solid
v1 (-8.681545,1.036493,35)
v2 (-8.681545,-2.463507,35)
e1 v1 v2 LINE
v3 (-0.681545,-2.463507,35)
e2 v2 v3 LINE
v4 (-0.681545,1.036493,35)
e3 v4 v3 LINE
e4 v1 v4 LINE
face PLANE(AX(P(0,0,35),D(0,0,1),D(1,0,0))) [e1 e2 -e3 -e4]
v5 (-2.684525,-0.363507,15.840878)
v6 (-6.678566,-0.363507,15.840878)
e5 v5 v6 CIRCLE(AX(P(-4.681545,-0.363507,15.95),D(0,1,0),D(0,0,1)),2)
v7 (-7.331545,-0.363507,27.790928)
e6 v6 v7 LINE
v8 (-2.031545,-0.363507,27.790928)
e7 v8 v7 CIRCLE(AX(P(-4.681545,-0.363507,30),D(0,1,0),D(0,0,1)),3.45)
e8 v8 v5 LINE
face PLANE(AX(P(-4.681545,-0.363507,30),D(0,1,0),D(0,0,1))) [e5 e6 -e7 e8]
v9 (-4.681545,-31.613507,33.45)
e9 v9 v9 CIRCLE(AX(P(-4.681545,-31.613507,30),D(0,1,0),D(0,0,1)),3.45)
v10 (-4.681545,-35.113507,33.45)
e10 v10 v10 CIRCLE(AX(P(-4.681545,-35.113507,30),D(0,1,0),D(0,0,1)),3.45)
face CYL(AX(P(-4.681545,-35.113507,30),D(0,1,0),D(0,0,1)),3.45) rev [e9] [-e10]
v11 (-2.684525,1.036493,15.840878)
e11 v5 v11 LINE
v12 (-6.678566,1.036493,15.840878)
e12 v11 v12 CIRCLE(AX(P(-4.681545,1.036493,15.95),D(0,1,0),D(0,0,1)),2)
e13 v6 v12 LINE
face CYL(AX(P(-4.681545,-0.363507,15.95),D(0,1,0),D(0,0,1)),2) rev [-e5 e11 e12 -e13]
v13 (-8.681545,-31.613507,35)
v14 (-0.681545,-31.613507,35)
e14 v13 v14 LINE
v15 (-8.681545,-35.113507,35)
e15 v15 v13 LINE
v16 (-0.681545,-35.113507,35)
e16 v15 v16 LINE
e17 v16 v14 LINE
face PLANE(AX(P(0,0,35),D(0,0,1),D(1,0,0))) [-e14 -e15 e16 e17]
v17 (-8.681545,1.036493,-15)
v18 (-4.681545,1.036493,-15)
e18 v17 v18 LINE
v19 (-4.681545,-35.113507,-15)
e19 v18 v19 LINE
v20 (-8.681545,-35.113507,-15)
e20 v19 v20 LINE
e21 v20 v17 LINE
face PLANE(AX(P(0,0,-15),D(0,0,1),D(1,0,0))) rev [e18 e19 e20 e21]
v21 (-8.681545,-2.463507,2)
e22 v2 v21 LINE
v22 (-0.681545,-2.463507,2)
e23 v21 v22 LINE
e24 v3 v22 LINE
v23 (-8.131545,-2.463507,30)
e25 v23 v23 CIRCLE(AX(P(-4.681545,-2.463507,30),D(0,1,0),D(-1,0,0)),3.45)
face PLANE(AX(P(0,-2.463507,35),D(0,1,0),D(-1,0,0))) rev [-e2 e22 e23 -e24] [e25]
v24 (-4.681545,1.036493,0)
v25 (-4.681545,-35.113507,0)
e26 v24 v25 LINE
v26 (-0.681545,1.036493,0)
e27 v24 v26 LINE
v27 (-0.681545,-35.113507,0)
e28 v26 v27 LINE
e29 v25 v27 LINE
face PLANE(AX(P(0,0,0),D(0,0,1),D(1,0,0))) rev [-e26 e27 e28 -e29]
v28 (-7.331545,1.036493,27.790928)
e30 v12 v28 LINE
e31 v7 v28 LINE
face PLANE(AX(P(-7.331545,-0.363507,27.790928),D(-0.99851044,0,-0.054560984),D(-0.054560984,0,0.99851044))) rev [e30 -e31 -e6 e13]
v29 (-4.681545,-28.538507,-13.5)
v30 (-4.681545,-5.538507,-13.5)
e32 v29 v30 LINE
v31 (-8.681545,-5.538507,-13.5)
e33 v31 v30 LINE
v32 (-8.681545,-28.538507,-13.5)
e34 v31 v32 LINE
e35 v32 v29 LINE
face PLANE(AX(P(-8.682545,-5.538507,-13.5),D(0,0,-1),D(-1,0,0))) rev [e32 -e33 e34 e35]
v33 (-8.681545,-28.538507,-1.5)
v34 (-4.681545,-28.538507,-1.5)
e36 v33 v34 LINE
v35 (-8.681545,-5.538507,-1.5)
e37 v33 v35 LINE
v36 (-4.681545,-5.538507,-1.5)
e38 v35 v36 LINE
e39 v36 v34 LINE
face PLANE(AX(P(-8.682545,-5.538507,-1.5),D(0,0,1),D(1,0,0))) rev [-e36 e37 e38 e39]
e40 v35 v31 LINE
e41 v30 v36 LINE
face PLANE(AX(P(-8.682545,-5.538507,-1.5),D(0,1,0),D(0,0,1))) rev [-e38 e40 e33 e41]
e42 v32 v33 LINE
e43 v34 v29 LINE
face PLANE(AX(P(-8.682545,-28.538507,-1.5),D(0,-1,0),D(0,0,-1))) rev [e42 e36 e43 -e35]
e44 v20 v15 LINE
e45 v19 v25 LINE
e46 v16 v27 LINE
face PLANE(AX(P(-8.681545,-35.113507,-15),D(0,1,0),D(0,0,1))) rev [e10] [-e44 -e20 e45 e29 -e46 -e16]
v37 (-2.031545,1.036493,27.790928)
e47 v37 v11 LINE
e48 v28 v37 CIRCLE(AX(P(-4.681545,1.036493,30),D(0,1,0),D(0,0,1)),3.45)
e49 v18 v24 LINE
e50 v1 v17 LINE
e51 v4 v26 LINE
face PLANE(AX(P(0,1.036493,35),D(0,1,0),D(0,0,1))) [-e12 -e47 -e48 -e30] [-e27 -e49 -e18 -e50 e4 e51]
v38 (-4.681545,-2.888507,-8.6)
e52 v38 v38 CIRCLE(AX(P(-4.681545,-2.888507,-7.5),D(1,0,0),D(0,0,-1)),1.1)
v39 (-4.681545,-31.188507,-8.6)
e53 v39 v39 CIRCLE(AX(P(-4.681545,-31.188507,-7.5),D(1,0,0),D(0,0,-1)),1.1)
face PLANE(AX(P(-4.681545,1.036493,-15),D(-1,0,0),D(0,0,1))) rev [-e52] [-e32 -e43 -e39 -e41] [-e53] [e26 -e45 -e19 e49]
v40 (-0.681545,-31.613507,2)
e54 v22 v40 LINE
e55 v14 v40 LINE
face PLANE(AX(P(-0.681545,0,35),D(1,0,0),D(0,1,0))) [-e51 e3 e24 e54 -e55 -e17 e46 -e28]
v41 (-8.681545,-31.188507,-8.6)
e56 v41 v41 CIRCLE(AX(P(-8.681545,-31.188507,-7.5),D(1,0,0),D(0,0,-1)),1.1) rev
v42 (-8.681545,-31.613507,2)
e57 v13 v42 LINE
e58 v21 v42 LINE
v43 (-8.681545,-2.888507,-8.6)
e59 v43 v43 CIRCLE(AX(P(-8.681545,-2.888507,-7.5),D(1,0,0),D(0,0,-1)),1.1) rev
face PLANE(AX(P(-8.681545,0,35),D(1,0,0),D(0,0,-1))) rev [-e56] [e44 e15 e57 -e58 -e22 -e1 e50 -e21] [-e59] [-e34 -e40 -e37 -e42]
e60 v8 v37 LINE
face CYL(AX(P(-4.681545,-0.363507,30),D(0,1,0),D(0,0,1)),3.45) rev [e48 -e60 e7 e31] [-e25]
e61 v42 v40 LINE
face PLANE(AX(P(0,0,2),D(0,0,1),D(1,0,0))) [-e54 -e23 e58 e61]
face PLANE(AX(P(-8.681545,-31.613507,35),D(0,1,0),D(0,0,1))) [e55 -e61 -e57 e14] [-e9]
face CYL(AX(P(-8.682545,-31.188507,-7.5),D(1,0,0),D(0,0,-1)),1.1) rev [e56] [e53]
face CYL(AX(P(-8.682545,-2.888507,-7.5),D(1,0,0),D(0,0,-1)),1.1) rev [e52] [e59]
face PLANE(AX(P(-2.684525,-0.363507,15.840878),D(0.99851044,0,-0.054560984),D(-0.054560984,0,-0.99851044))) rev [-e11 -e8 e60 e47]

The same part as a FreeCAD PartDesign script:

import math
import FreeCAD as App
import Part
import Sketcher

doc = App.newDocument("Part")
body = doc.addObject("PartDesign::Body", "Body")

# Sketch on XY plane
sketch1 = body.newObject("Sketcher::SketchObject", "Sketch")
sketch1.AttachmentSupport = (doc.getObject("XY_Plane"), [""])
sketch1.MapMode = "FlatFace"
sketch1.addGeometry(Part.LineSegment(App.Vector(-8.681545, 1.036493, 0), App.Vector(-8.681545, -2.463507, 0)), False)
sketch1.addGeometry(Part.LineSegment(App.Vector(-8.681545, -2.463507, 0), App.Vector(-0.681545, -2.463507, 0)), False)
sketch1.addGeometry(Part.LineSegment(App.Vector(-0.681545, -2.463507, 0), App.Vector(-0.681545, 1.036493, 0)), False)
sketch1.addGeometry(Part.LineSegment(App.Vector(-0.681545, 1.036493, 0), App.Vector(-8.681545, 1.036493, 0)), False)
sketch1.addConstraint(Sketcher.Constraint("Coincident", 0, 2, 1, 1))
sketch1.addConstraint(Sketcher.Constraint("Coincident", 1, 2, 2, 1))
sketch1.addConstraint(Sketcher.Constraint("Coincident", 2, 2, 3, 1))
sketch1.addConstraint(Sketcher.Constraint("Coincident", 3, 2, 0, 1))
sketch1.addConstraint(Sketcher.Constraint("Vertical", 0))
sketch1.addConstraint(Sketcher.Constraint("Horizontal", 1))
sketch1.addConstraint(Sketcher.Constraint("Vertical", 2))
sketch1.addConstraint(Sketcher.Constraint("Horizontal", 3))
sketch1.addConstraint(Sketcher.Constraint("DistanceX", 1, 1, 1, 2, 8.0))
sketch1.addConstraint(Sketcher.Constraint("DistanceY", 0, 2, 0, 1, 3.5))
sketch1.addConstraint(Sketcher.Constraint("DistanceX", 0, 2, -1, 1, 8.681545))
sketch1.addConstraint(Sketcher.Constraint("DistanceY", 0, 2, -1, 1, 2.463507))
pad1 = body.newObject("PartDesign::Pad", "Pad")
pad1.Profile = sketch1
pad1.Length = 35

# Sketch on XY plane
sketch2 = body.newObject("Sketcher::SketchObject", "Sketch001")
sketch2.AttachmentSupport = (doc.getObject("XY_Plane"), [""])
sketch2.MapMode = "FlatFace"
sketch2.addGeometry(Part.LineSegment(App.Vector(-8.681545, -2.463507, 0), App.Vector(-8.681545, -31.613507, 0)), False)
sketch2.addGeometry(Part.LineSegment(App.Vector(-8.681545, -31.613507, 0), App.Vector(-0.681545, -31.613507, 0)), False)
sketch2.addGeometry(Part.LineSegment(App.Vector(-0.681545, -31.613507, 0), App.Vector(-0.681545, -2.463507, 0)), False)
sketch2.addGeometry(Part.LineSegment(App.Vector(-0.681545, -2.463507, 0), App.Vector(-8.681545, -2.463507, 0)), False)
sketch2.addConstraint(Sketcher.Constraint("Coincident", 0, 2, 1, 1))
sketch2.addConstraint(Sketcher.Constraint("Coincident", 1, 2, 2, 1))
sketch2.addConstraint(Sketcher.Constraint("Coincident", 2, 2, 3, 1))
sketch2.addConstraint(Sketcher.Constraint("Coincident", 3, 2, 0, 1))
sketch2.addConstraint(Sketcher.Constraint("Vertical", 0))
sketch2.addConstraint(Sketcher.Constraint("Horizontal", 1))
sketch2.addConstraint(Sketcher.Constraint("Vertical", 2))
sketch2.addConstraint(Sketcher.Constraint("Horizontal", 3))
sketch2.addConstraint(Sketcher.Constraint("DistanceX", 1, 1, 1, 2, 8.0))
sketch2.addConstraint(Sketcher.Constraint("DistanceY", 0, 2, 0, 1, 29.15))
sketch2.addConstraint(Sketcher.Constraint("DistanceX", 0, 2, -1, 1, 8.681545))
sketch2.addConstraint(Sketcher.Constraint("DistanceY", 0, 2, -1, 1, 31.613507))
pad2 = body.newObject("PartDesign::Pad", "Pad001")
pad2.Profile = sketch2
pad2.Length = 2
body2 = doc.addObject("PartDesign::Body", "Body001")

# Sketch on XY plane
sketch3 = body2.newObject("Sketcher::SketchObject", "Sketch002")
sketch3.AttachmentSupport = (doc.getObject("XY_Plane001"), [""])
sketch3.MapMode = "FlatFace"
sketch3.addGeometry(Part.LineSegment(App.Vector(-8.681545, -31.613507, 0), App.Vector(-8.681545, -35.113507, 0)), False)
sketch3.addGeometry(Part.LineSegment(App.Vector(-8.681545, -35.113507, 0), App.Vector(-0.681545, -35.113507, 0)), False)
sketch3.addGeometry(Part.LineSegment(App.Vector(-0.681545, -35.113507, 0), App.Vector(-0.681545, -31.613507, 0)), False)
sketch3.addGeometry(Part.LineSegment(App.Vector(-0.681545, -31.613507, 0), App.Vector(-8.681545, -31.613507, 0)), False)
sketch3.addConstraint(Sketcher.Constraint("Coincident", 0, 2, 1, 1))
sketch3.addConstraint(Sketcher.Constraint("Coincident", 1, 2, 2, 1))
sketch3.addConstraint(Sketcher.Constraint("Coincident", 2, 2, 3, 1))
sketch3.addConstraint(Sketcher.Constraint("Coincident", 3, 2, 0, 1))
sketch3.addConstraint(Sketcher.Constraint("Vertical", 0))
sketch3.addConstraint(Sketcher.Constraint("Horizontal", 1))
sketch3.addConstraint(Sketcher.Constraint("Vertical", 2))
sketch3.addConstraint(Sketcher.Constraint("Horizontal", 3))
sketch3.addConstraint(Sketcher.Constraint("DistanceX", 1, 1, 1, 2, 8.0))
sketch3.addConstraint(Sketcher.Constraint("DistanceY", 0, 2, 0, 1, 3.5))
sketch3.addConstraint(Sketcher.Constraint("DistanceX", 0, 2, -1, 1, 8.681545))
sketch3.addConstraint(Sketcher.Constraint("DistanceY", 0, 2, -1, 1, 35.113507))
pad3 = body2.newObject("PartDesign::Pad", "Pad002")
pad3.Profile = sketch3
pad3.Length = 35
doc.recompute()

boolean = body.newObject("PartDesign::Boolean", "Boolean")
boolean.Type = "Fuse"
boolean.addObjects([body2])

# Sketch on XY plane
sketch4 = body.newObject("Sketcher::SketchObject", "Sketch003")
sketch4.AttachmentSupport = (doc.getObject("XY_Plane"), [""])
sketch4.MapMode = "FlatFace"
sketch4.addGeometry(Part.LineSegment(App.Vector(-4.681545, 1.036493, 0), App.Vector(-4.681545, -35.113507, 0)), False)
sketch4.addGeometry(Part.LineSegment(App.Vector(-4.681545, -35.113507, 0), App.Vector(-8.681545, -35.113507, 0)), False)
sketch4.addGeometry(Part.LineSegment(App.Vector(-8.681545, -35.113507, 0), App.Vector(-8.681545, 1.036493, 0)), False)
sketch4.addGeometry(Part.LineSegment(App.Vector(-8.681545, 1.036493, 0), App.Vector(-4.681545, 1.036493, 0)), False)
sketch4.addConstraint(Sketcher.Constraint("Coincident", 0, 2, 1, 1))
sketch4.addConstraint(Sketcher.Constraint("Coincident", 1, 2, 2, 1))
sketch4.addConstraint(Sketcher.Constraint("Coincident", 2, 2, 3, 1))
sketch4.addConstraint(Sketcher.Constraint("Coincident", 3, 2, 0, 1))
sketch4.addConstraint(Sketcher.Constraint("Vertical", 0))
sketch4.addConstraint(Sketcher.Constraint("Horizontal", 1))
sketch4.addConstraint(Sketcher.Constraint("Vertical", 2))
sketch4.addConstraint(Sketcher.Constraint("Horizontal", 3))
sketch4.addConstraint(Sketcher.Constraint("DistanceX", 1, 2, 1, 1, 4.0))
sketch4.addConstraint(Sketcher.Constraint("DistanceY", 0, 2, 0, 1, 36.15))
sketch4.addConstraint(Sketcher.Constraint("DistanceX", 0, 2, -1, 1, 4.681545))
sketch4.addConstraint(Sketcher.Constraint("DistanceY", 0, 2, -1, 1, 35.113507))
pad4 = body.newObject("PartDesign::Pad", "Pad003")
pad4.Profile = sketch4
pad4.Length = 15
pad4.Reversed = True

# Sketch on YZ plane
sketch5 = body.newObject("Sketcher::SketchObject", "Sketch004")
sketch5.AttachmentSupport = (doc.getObject("YZ_Plane"), [""])
sketch5.MapMode = "FlatFace"
sketch5.AttachmentOffset = App.Placement(App.Vector(0, 0, -4.681545), App.Rotation())
sketch5.addGeometry(Part.Circle(App.Vector(-2.888507, -7.5, 0), App.Vector(0, 0, 1), 1.1), False)
sketch5.addConstraint(Sketcher.Constraint("Diameter", 0, 2.2))
sketch5.addConstraint(Sketcher.Constraint("DistanceY", 0, 3, -1, 1, 7.5))
sketch5.addConstraint(Sketcher.Constraint("DistanceX", 0, 3, -1, 1, 2.888507))
pocket1 = body.newObject("PartDesign::Pocket", "Pocket")
pocket1.Profile = sketch5
pocket1.Type = "UpToFirst"

# Sketch on YZ plane
sketch6 = body.newObject("Sketcher::SketchObject", "Sketch005")
sketch6.AttachmentSupport = (doc.getObject("YZ_Plane"), [""])
sketch6.MapMode = "FlatFace"
sketch6.AttachmentOffset = App.Placement(App.Vector(0, 0, -4.681545), App.Rotation())
sketch6.addGeometry(Part.Circle(App.Vector(-31.188507, -7.5, 0), App.Vector(0, 0, 1), 1.1), False)
sketch6.addConstraint(Sketcher.Constraint("Diameter", 0, 2.2))
sketch6.addConstraint(Sketcher.Constraint("DistanceY", 0, 3, -1, 1, 7.5))
sketch6.addConstraint(Sketcher.Constraint("DistanceX", 0, 3, -1, 1, 31.188507))
pocket2 = body.newObject("PartDesign::Pocket", "Pocket001")
pocket2.Profile = sketch6
pocket2.Type = "UpToFirst"

# Sketch on YZ plane
sketch7 = body.newObject("Sketcher::SketchObject", "Sketch006")
sketch7.AttachmentSupport = (doc.getObject("YZ_Plane"), [""])
sketch7.MapMode = "FlatFace"
sketch7.AttachmentOffset = App.Placement(App.Vector(0, 0, -4.681545), App.Rotation())
sketch7.addGeometry(Part.LineSegment(App.Vector(-5.538507, -1.5, 0), App.Vector(-28.538507, -1.5, 0)), False)
sketch7.addGeometry(Part.LineSegment(App.Vector(-28.538507, -1.5, 0), App.Vector(-28.538507, -13.5, 0)), False)
sketch7.addGeometry(Part.LineSegment(App.Vector(-28.538507, -13.5, 0), App.Vector(-5.538507, -13.5, 0)), False)
sketch7.addGeometry(Part.LineSegment(App.Vector(-5.538507, -13.5, 0), App.Vector(-5.538507, -1.5, 0)), False)
sketch7.addConstraint(Sketcher.Constraint("Coincident", 0, 2, 1, 1))
sketch7.addConstraint(Sketcher.Constraint("Coincident", 1, 2, 2, 1))
sketch7.addConstraint(Sketcher.Constraint("Coincident", 2, 2, 3, 1))
sketch7.addConstraint(Sketcher.Constraint("Coincident", 3, 2, 0, 1))
sketch7.addConstraint(Sketcher.Constraint("Horizontal", 0))
sketch7.addConstraint(Sketcher.Constraint("Vertical", 1))
sketch7.addConstraint(Sketcher.Constraint("Horizontal", 2))
sketch7.addConstraint(Sketcher.Constraint("Vertical", 3))
sketch7.addConstraint(Sketcher.Constraint("DistanceX", 0, 2, 0, 1, 23.0))
sketch7.addConstraint(Sketcher.Constraint("DistanceY", 1, 2, 1, 1, 12.0))
sketch7.addConstraint(Sketcher.Constraint("DistanceY", 0, 2, -1, 1, 1.5))
sketch7.addConstraint(Sketcher.Constraint("DistanceX", 0, 2, -1, 1, 28.538507))
pocket3 = body.newObject("PartDesign::Pocket", "Pocket002")
pocket3.Profile = sketch7
pocket3.Type = "UpToFirst"

# Sketch on XZ plane
sketch8 = body.newObject("Sketcher::SketchObject", "Sketch007")
sketch8.AttachmentSupport = (doc.getObject("XZ_Plane"), [""])
sketch8.MapMode = "FlatFace"
sketch8.AttachmentOffset = App.Placement(App.Vector(0, 0, -1.036493), App.Rotation())
sketch8.addGeometry(Part.LineSegment(App.Vector(-2.031545, 27.790928, 0), App.Vector(-2.684525, 15.840878, 0)), False)
sketch8.addGeometry(Part.ArcOfCircle(Part.Circle(App.Vector(-4.681545, 15.95, 0), App.Vector(0, 0, 1), 2), math.radians(-176.872333), math.radians(-3.127667)), False)
sketch8.addGeometry(Part.LineSegment(App.Vector(-6.678566, 15.840878, 0), App.Vector(-7.331545, 27.790928, 0)), False)
sketch8.addGeometry(Part.ArcOfCircle(Part.Circle(App.Vector(-4.681545, 30, 0), App.Vector(0, 0, 1), 3.45), math.radians(-39.814998), math.radians(219.814998)), False)
sketch8.addConstraint(Sketcher.Constraint("Tangent", 0, 2, 1, 2))
sketch8.addConstraint(Sketcher.Constraint("Tangent", 1, 1, 2, 1))
sketch8.addConstraint(Sketcher.Constraint("Coincident", 2, 2, 3, 2))
sketch8.addConstraint(Sketcher.Constraint("Coincident", 3, 1, 0, 1))
sketch8.addConstraint(Sketcher.Constraint("Horizontal", 0, 2, 1, 1))
sketch8.addConstraint(Sketcher.Constraint("Horizontal", 2, 2, 3, 1))
sketch8.addConstraint(Sketcher.Constraint("Radius", 1, 2.0))
sketch8.addConstraint(Sketcher.Constraint("Radius", 3, 3.45))
sketch8.addConstraint(Sketcher.Constraint("DistanceY", -1, 1, 3, 3, 30.0))
sketch8.addConstraint(Sketcher.Constraint("DistanceX", 2, 2, 3, 1, 5.3))
sketch8.addConstraint(Sketcher.Constraint("DistanceY", -1, 1, 1, 3, 15.95))
sketch8.addConstraint(Sketcher.Constraint("DistanceX", 1, 3, -1, 1, 4.681545))
pocket4 = body.newObject("PartDesign::Pocket", "Pocket003")
pocket4.Profile = sketch8
pocket4.Length = 1.4
pocket4.Reversed = True

# Sketch on XZ plane
sketch9 = body.newObject("Sketcher::SketchObject", "Sketch008")
sketch9.AttachmentSupport = (doc.getObject("XZ_Plane"), [""])
sketch9.MapMode = "FlatFace"
sketch9.AttachmentOffset = App.Placement(App.Vector(0, 0, -1.036493), App.Rotation())
sketch9.addGeometry(Part.Circle(App.Vector(-4.681545, 30, 0), App.Vector(0, 0, 1), 3.45), False)
sketch9.addConstraint(Sketcher.Constraint("Diameter", 0, 6.9))
sketch9.addConstraint(Sketcher.Constraint("DistanceY", -1, 1, 0, 3, 30.0))
sketch9.addConstraint(Sketcher.Constraint("DistanceX", 0, 3, -1, 1, 4.681545))
pocket5 = body.newObject("PartDesign::Pocket", "Pocket004")
pocket5.Profile = sketch9
pocket5.Type = "ThroughAll"
pocket5.Reversed = True

doc.recompute()
